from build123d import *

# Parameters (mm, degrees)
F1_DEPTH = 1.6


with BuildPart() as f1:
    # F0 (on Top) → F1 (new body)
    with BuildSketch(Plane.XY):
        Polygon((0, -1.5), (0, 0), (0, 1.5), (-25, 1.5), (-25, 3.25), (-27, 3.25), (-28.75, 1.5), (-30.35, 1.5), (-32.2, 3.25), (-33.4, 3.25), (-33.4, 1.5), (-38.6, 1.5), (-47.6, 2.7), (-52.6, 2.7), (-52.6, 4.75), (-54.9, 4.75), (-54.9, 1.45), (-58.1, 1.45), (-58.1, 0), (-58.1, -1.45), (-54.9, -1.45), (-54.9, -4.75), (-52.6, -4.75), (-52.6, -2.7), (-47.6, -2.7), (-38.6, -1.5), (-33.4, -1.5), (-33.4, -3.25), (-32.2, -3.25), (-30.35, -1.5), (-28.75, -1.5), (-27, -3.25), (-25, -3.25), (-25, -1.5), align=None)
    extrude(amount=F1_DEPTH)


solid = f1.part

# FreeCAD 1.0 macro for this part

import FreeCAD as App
import Part
import Sketcher

V = App.Vector


def add_polygon(sketch, points):
    """Adds a closed chain of lines whose ends are joined by coincident constraints."""
    first, n = sketch.GeometryCount, len(points)
    for a, b in zip(points, points[1:] + points[:1]):
        sketch.addGeometry(Part.LineSegment(App.Vector(*a, 0), App.Vector(*b, 0)), False)
    for i in range(n):
        sketch.addConstraint(Sketcher.Constraint("Coincident", first + i, 2, first + (i + 1) % n, 1))

doc = App.newDocument("Part")
body = doc.addObject("PartDesign::Body", "Body")

# Sketch on XY plane
sketch1 = body.newObject("Sketcher::SketchObject", "Sketch")
sketch1.AttachmentSupport = (doc.getObject("XY_Plane"), [""])
sketch1.MapMode = "FlatFace"
add_polygon(sketch1, [(0, -1.5), (0, 1.5), (-25, 1.5), (-25, 3.2), (-27, 3.2), (-28.8, 1.5), (-30.4, 1.5), (-32.2, 3.2), (-33.4, 3.2), (-33.4, 1.5), (-38.6, 1.5), (-47.6, 2.7), (-52.6, 2.7), (-52.6, 4.8), (-54.9, 4.8), (-54.9, 1.4), (-58.1, 1.4), (-58.1, -1.4), (-54.9, -1.4), (-54.9, -4.8), (-52.6, -4.8), (-52.6, -2.7), (-47.6, -2.7), (-38.6, -1.5), (-33.4, -1.5), (-33.4, -3.2), (-32.2, -3.2), (-30.4, -1.5), (-28.8, -1.5), (-27, -3.2), (-25, -3.2), (-25, -1.5)])  # lines 0-31
sketch1.addConstraint([
    Sketcher.Constraint("Vertical", 0),
    Sketcher.Constraint("Horizontal", 1),
    Sketcher.Constraint("Vertical", 2),
    Sketcher.Constraint("Horizontal", 3),
    Sketcher.Constraint("Horizontal", 5),
    Sketcher.Constraint("Horizontal", 7),
    Sketcher.Constraint("Vertical", 8),
    Sketcher.Constraint("Horizontal", 9),
    Sketcher.Constraint("Horizontal", 11),
    Sketcher.Constraint("Vertical", 12),
    Sketcher.Constraint("Horizontal", 13),
    Sketcher.Constraint("Vertical", 14),
    Sketcher.Constraint("Horizontal", 15),
    Sketcher.Constraint("Vertical", 16),
    Sketcher.Constraint("Horizontal", 17),
    Sketcher.Constraint("Vertical", 18),
    Sketcher.Constraint("Horizontal", 19),
    Sketcher.Constraint("Vertical", 20),
    Sketcher.Constraint("Horizontal", 21),
    Sketcher.Constraint("Horizontal", 23),
    Sketcher.Constraint("Vertical", 24),
    Sketcher.Constraint("Horizontal", 25),
    Sketcher.Constraint("Horizontal", 27),
    Sketcher.Constraint("Horizontal", 29),
    Sketcher.Constraint("Vertical", 30),
    Sketcher.Constraint("Horizontal", 31),
    Sketcher.Constraint("Symmetric", 0, 2, 31, 2, -1, 1),
    Sketcher.Constraint("Symmetric", 14, 2, 17, 2, -1),
    Sketcher.Constraint("Symmetric", 12, 2, 19, 2, -1),
    Sketcher.Constraint("Symmetric", 10, 2, 21, 2, -1),
    Sketcher.Constraint("Symmetric", 9, 2, 22, 2, -1),
    Sketcher.Constraint("Symmetric", 7, 2, 24, 2, -1),
    Sketcher.Constraint("Symmetric", 5, 2, 26, 2, -1),
    Sketcher.Constraint("Symmetric", 3, 2, 28, 2, -1),
    Sketcher.Constraint("Perpendicular", 4, 28),
    Sketcher.Constraint("Horizontal", 1, 2, 4, 2),
    Sketcher.Constraint("Horizontal", 3, 2, 6, 2),
    Sketcher.Constraint("Horizontal", 5, 2, 8, 2),
    Sketcher.Constraint("Vertical", 6, 2, 25, 2),
    Sketcher.Constraint("Vertical", 4, 2, 27, 2),
    Sketcher.Constraint("Vertical", 2, 2, 29, 2),
    Sketcher.Constraint("DistanceX", 1, 2, 1, 1, 25.0),
    Sketcher.Constraint("DistanceX", 3, 2, 3, 1, 2.0),
    Sketcher.Constraint("DistanceX", 11, 2, 11, 1, 5.0),
    Sketcher.Constraint("DistanceY", 0, 1, 0, 2, 3.0),
    Sketcher.Constraint("DistanceX", 5, 2, 5, 1, 1.6),
    Sketcher.Constraint("DistanceX", 7, 2, 7, 1, 1.2),
    Sketcher.Constraint("DistanceX", 9, 2, 9, 1, 5.2),
    Sketcher.Constraint("DistanceX", 13, 2, 13, 1, 2.3),
    Sketcher.Constraint("DistanceX", 15, 2, 15, 1, 3.2),
    Sketcher.Constraint("DistanceY", 14, 2, 14, 1, 3.3),
    Sketcher.Constraint("DistanceY", 16, 2, 16, 1, 2.9),
    Sketcher.Constraint("DistanceX", 10, 2, 9, 2, 9.0),
    Sketcher.Constraint("DistanceY", 2, 1, 2, 2, 1.75),
    Sketcher.Constraint("DistanceY", 12, 1, 12, 2, 2.05),
    Sketcher.Constraint("DistanceX", 6, 2, -1, 1, 32.2),
])
pad1 = body.newObject("PartDesign::Pad", "Pad")
pad1.Profile = sketch1
pad1.Length = 1.6

doc.recompute()
